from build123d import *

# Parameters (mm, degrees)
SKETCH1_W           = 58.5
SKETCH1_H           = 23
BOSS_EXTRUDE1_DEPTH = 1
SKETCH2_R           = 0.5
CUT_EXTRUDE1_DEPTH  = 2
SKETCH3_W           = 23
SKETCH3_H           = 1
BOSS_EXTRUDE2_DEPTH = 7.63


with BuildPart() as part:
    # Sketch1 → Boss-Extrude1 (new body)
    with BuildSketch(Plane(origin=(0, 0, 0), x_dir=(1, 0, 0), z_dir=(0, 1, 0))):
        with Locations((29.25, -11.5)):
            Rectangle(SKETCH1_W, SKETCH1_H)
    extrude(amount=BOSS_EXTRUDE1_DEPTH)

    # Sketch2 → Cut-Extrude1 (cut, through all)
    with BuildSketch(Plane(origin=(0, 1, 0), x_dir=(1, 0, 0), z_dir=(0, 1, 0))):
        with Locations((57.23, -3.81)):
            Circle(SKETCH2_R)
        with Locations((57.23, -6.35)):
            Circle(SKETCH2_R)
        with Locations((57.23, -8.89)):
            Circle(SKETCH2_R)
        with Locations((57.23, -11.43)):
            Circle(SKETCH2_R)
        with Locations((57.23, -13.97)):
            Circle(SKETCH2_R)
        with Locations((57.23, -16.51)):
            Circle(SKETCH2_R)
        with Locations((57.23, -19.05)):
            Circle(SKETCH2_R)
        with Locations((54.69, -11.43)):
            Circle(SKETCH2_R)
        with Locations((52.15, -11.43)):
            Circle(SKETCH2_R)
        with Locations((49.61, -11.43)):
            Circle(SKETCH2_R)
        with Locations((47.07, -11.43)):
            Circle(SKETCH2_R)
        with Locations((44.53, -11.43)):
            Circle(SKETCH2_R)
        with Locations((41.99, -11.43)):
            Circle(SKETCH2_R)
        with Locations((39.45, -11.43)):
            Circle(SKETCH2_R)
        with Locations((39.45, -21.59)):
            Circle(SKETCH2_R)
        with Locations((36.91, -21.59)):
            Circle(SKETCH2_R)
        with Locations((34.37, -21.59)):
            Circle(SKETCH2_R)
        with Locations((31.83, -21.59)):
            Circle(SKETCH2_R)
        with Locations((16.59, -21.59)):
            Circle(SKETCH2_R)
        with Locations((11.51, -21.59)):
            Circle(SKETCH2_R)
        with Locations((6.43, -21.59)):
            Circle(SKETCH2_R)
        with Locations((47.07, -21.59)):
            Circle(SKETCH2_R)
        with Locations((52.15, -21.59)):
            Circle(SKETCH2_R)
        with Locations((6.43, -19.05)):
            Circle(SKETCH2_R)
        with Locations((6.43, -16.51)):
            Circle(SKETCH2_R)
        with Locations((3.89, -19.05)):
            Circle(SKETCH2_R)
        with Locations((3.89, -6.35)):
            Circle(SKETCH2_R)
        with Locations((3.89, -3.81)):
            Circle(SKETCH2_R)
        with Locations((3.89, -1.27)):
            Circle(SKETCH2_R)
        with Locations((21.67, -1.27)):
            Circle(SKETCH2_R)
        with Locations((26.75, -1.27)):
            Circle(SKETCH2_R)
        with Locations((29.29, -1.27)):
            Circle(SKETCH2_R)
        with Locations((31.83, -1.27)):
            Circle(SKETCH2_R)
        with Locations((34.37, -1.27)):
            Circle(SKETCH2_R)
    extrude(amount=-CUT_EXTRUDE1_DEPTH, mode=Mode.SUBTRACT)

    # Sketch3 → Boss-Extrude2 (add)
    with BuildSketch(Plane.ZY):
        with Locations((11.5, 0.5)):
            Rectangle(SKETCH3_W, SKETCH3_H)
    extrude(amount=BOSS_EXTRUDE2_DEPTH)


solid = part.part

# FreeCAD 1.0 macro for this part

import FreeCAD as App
import Part
import Sketcher

V = App.Vector
Q = App.Units.Quantity


def add_polygon(sketch, points):
    """Adds a closed chain of lines whose ends are joined by coincident constraints."""
    first, n = sketch.GeometryCount, len(points)
    for a, b in zip(points, points[1:] + points[:1]):
        sketch.addGeometry(Part.LineSegment(App.Vector(*a, 0), App.Vector(*b, 0)), False)
    for i in range(n):
        sketch.addConstraint(Sketcher.Constraint("Coincident", first + i, 2, first + (i + 1) % n, 1))

doc = App.newDocument("Part")
params = doc.addObject("Spreadsheet::Sheet", "Params")
for row, (alias, value) in enumerate([
    ("sketch1_height", "23 mm"),
    ("sketch1_width", "58.5 mm"),
    ("pad1_length", "1 mm"),
    ("sketch2_diameter", "1 mm"),
    ("sketch3_width", "1 mm"),
    ("sketch3_height", "23 mm"),
    ("pad2_length", "7.63 mm"),
], start=1):
    params.set(f"A{row}", alias)
    params.set(f"B{row}", "=" + value)
    params.setAlias(f"B{row}", alias)

body = doc.addObject("PartDesign::Body", "Body")

sketch1 = body.newObject("Sketcher::SketchObject", "Sketch")
sketch1.AttachmentSupport = (doc.getObject("XZ_Plane"), [""])
sketch1.MapMode = "FlatFace"
add_polygon(sketch1, [(0, 0), (0, 23), (58.5, 23), (58.5, 0)])
sketch1.addConstraint([
    Sketcher.Constraint("Vertical", 0),
    Sketcher.Constraint("Horizontal", 1),
    Sketcher.Constraint("Vertical", 2),
    Sketcher.Constraint("Horizontal", 3),
    Sketcher.Constraint("Coincident", 3, 2, -1, 1),
    Sketcher.Constraint("DistanceY", 0, 1, 0, 2, Q("23 mm")),
    Sketcher.Constraint("DistanceX", 1, 1, 1, 2, Q("58.5 mm")),
])
sketch1.setExpression("Constraints[9]", "Params.sketch1_height")
sketch1.setExpression("Constraints[10]", "Params.sketch1_width")
pad1 = body.newObject("PartDesign::Pad", "Pad")
pad1.Profile = sketch1
pad1.setExpression("Length", "Params.pad1_length")
pad1.Reversed = True

sketch2 = body.newObject("Sketcher::SketchObject", "Sketch001")
sketch2.AttachmentSupport = (doc.getObject("XZ_Plane"), [""])
sketch2.MapMode = "FlatFace"
sketch2.AttachmentOffset = App.Placement(V(0, 0, -1), App.Rotation())
sketch2.addGeometry([
    Part.Circle(V(57.23, 3.81, 0), V(0, 0, 1), 0.5),
    Part.Circle(V(57.23, 6.35, 0), V(0, 0, 1), 0.5),
    Part.Circle(V(57.23, 8.89, 0), V(0, 0, 1), 0.5),
    Part.Circle(V(57.23, 11.43, 0), V(0, 0, 1), 0.5),
    Part.Circle(V(57.23, 13.97, 0), V(0, 0, 1), 0.5),
    Part.Circle(V(57.23, 16.51, 0), V(0, 0, 1), 0.5),
    Part.Circle(V(57.23, 19.05, 0), V(0, 0, 1), 0.5),
    Part.Circle(V(54.69, 11.43, 0), V(0, 0, 1), 0.5),
    Part.Circle(V(52.15, 11.43, 0), V(0, 0, 1), 0.5),
    Part.Circle(V(49.61, 11.43, 0), V(0, 0, 1), 0.5),
    Part.Circle(V(47.07, 11.43, 0), V(0, 0, 1), 0.5),
    Part.Circle(V(44.53, 11.43, 0), V(0, 0, 1), 0.5),
    Part.Circle(V(41.99, 11.43, 0), V(0, 0, 1), 0.5),
    Part.Circle(V(39.45, 11.43, 0), V(0, 0, 1), 0.5),
    Part.Circle(V(39.45, 21.59, 0), V(0, 0, 1), 0.5),
    Part.Circle(V(36.91, 21.59, 0), V(0, 0, 1), 0.5),
    Part.Circle(V(34.37, 21.59, 0), V(0, 0, 1), 0.5),
    Part.Circle(V(31.83, 21.59, 0), V(0, 0, 1), 0.5),
    Part.Circle(V(16.59, 21.59, 0), V(0, 0, 1), 0.5),
    Part.Circle(V(11.51, 21.59, 0), V(0, 0, 1), 0.5),
    Part.Circle(V(6.43, 21.59, 0), V(0, 0, 1), 0.5),
    Part.Circle(V(47.07, 21.59, 0), V(0, 0, 1), 0.5),
    Part.Circle(V(52.15, 21.59, 0), V(0, 0, 1), 0.5),
    Part.Circle(V(6.43, 19.05, 0), V(0, 0, 1), 0.5),
    Part.Circle(V(6.43, 16.51, 0), V(0, 0, 1), 0.5),
    Part.Circle(V(3.89, 19.05, 0), V(0, 0, 1), 0.5),
    Part.Circle(V(3.89, 6.35, 0), V(0, 0, 1), 0.5),
    Part.Circle(V(3.89, 3.81, 0), V(0, 0, 1), 0.5),
    Part.Circle(V(3.89, 1.27, 0), V(0, 0, 1), 0.5),
    Part.Circle(V(21.67, 1.27, 0), V(0, 0, 1), 0.5),
    Part.Circle(V(26.75, 1.27, 0), V(0, 0, 1), 0.5),
    Part.Circle(V(29.29, 1.27, 0), V(0, 0, 1), 0.5),
    Part.Circle(V(31.83, 1.27, 0), V(0, 0, 1), 0.5),
    Part.Circle(V(34.37, 1.27, 0), V(0, 0, 1), 0.5),
], False)
sketch2.addConstraint([
    Sketcher.Constraint("Equal", 0, 1),
    Sketcher.Constraint("Equal", 1, 2),
    Sketcher.Constraint("Equal", 2, 3),
    Sketcher.Constraint("Equal", 3, 4),
    Sketcher.Constraint("Equal", 4, 5),
    Sketcher.Constraint("Equal", 5, 6),
    Sketcher.Constraint("Equal", 6, 7),
    Sketcher.Constraint("Equal", 7, 8),
    Sketcher.Constraint("Equal", 8, 9),
    Sketcher.Constraint("Equal", 9, 10),
    Sketcher.Constraint("Equal", 10, 11),
    Sketcher.Constraint("Equal", 11, 12),
    Sketcher.Constraint("Equal", 12, 13),
    Sketcher.Constraint("Equal", 13, 14),
    Sketcher.Constraint("Equal", 14, 15),
    Sketcher.Constraint("Equal", 15, 16),
    Sketcher.Constraint("Equal", 16, 17),
    Sketcher.Constraint("Equal", 17, 18),
    Sketcher.Constraint("Equal", 18, 19),
    Sketcher.Constraint("Equal", 19, 20),
    Sketcher.Constraint("Equal", 20, 21),
    Sketcher.Constraint("Equal", 21, 22),
    Sketcher.Constraint("Equal", 22, 23),
    Sketcher.Constraint("Equal", 23, 24),
    Sketcher.Constraint("Equal", 24, 25),
    Sketcher.Constraint("Equal", 25, 26),
    Sketcher.Constraint("Equal", 26, 27),
    Sketcher.Constraint("Equal", 27, 28),
    Sketcher.Constraint("Equal", 28, 29),
    Sketcher.Constraint("Equal", 29, 30),
    Sketcher.Constraint("Equal", 30, 31),
    Sketcher.Constraint("Equal", 31, 32),
    Sketcher.Constraint("Equal", 32, 33),
    Sketcher.Constraint("Horizontal", 3, 3, 7, 3),
    Sketcher.Constraint("Horizontal", 7, 3, 8, 3),
    Sketcher.Constraint("Horizontal", 8, 3, 9, 3),
    Sketcher.Constraint("Horizontal", 9, 3, 10, 3),
    Sketcher.Constraint("Horizontal", 10, 3, 11, 3),
    Sketcher.Constraint("Horizontal", 11, 3, 12, 3),
    Sketcher.Constraint("Horizontal", 12, 3, 13, 3),
    Sketcher.Constraint("Horizontal", 14, 3, 15, 3),
    Sketcher.Constraint("Horizontal", 15, 3, 16, 3),
    Sketcher.Constraint("Horizontal", 16, 3, 17, 3),
    Sketcher.Constraint("Horizontal", 17, 3, 18, 3),
    Sketcher.Constraint("Horizontal", 18, 3, 19, 3),
    Sketcher.Constraint("Horizontal", 19, 3, 20, 3),
    Sketcher.Constraint("Horizontal", 20, 3, 21, 3),
    Sketcher.Constraint("Horizontal", 21, 3, 22, 3),
    Sketcher.Constraint("Horizontal", 6, 3, 23, 3),
    Sketcher.Constraint("Horizontal", 5, 3, 24, 3),
    Sketcher.Constraint("Horizontal", 23, 3, 25, 3),
    Sketcher.Constraint("Horizontal", 1, 3, 26, 3),
    Sketcher.Constraint("Horizontal", 0, 3, 27, 3),
    Sketcher.Constraint("Horizontal", 28, 3, 29, 3),
    Sketcher.Constraint("Horizontal", 29, 3, 30, 3),
    Sketcher.Constraint("Horizontal", 30, 3, 31, 3),
    Sketcher.Constraint("Horizontal", 31, 3, 32, 3),
    Sketcher.Constraint("Horizontal", 32, 3, 33, 3),
    Sketcher.Constraint("Vertical", 0, 3, 1, 3),
    Sketcher.Constraint("Vertical", 1, 3, 2, 3),
    Sketcher.Constraint("Vertical", 2, 3, 3, 3),
    Sketcher.Constraint("Vertical", 3, 3, 4, 3),
    Sketcher.Constraint("Vertical", 4, 3, 5, 3),
    Sketcher.Constraint("Vertical", 5, 3, 6, 3),
    Sketcher.Constraint("Vertical", 13, 3, 14, 3),
    Sketcher.Constraint("Vertical", 10, 3, 21, 3),
    Sketcher.Constraint("Vertical", 8, 3, 22, 3),
    Sketcher.Constraint("Vertical", 20, 3, 23, 3),
    Sketcher.Constraint("Vertical", 23, 3, 24, 3),
    Sketcher.Constraint("Vertical", 25, 3, 26, 3),
    Sketcher.Constraint("Vertical", 26, 3, 27, 3),
    Sketcher.Constraint("Vertical", 27, 3, 28, 3),
    Sketcher.Constraint("Vertical", 17, 3, 32, 3),
    Sketcher.Constraint("Vertical", 16, 3, 33, 3),
    Sketcher.Constraint("Diameter", 0, Q("1 mm")),
    Sketcher.Constraint("DistanceY", 0, 3, 5, 3, Q("12.7 mm")),
    Sketcher.Constraint("DistanceY", 1, 3, 6, 3, Q("12.7 mm")),
    Sketcher.Constraint("DistanceX", 11, 3, 3, 3, Q("12.7 mm")),
    Sketcher.Constraint("DistanceX", 12, 3, 7, 3, Q("12.7 mm")),
    Sketcher.Constraint("DistanceX", 13, 3, 8, 3, Q("12.7 mm")),
    Sketcher.Constraint("DistanceX", 19, 3, 15, 3, Q("25.4 mm")),
    Sketcher.Constraint("DistanceX", 20, 3, 17, 3, Q("25.4 mm")),
    Sketcher.Constraint("DistanceX", 25, 3, 18, 3, Q("12.7 mm")),
    Sketcher.Constraint("DistanceX", 30, 3, 13, 3, Q("12.7 mm")),
    Sketcher.Constraint("DistanceX", 31, 3, 12, 3, Q("12.7 mm")),
    Sketcher.Constraint("DistanceX", 29, 3, 33, 3, Q("12.7 mm")),
    Sketcher.Constraint("DistanceX", -1, 1, 0, 3, Q("57.23 mm")),
    Sketcher.Constraint("DistanceY", -1, 1, 0, 3, Q("3.81 mm")),
    Sketcher.Constraint("DistanceY", -1, 1, 1, 3, Q("6.35 mm")),
    Sketcher.Constraint("DistanceY", -1, 1, 2, 3, Q("8.89 mm")),
    Sketcher.Constraint("DistanceY", -1, 1, 3, 3, Q("11.43 mm")),
    Sketcher.Constraint("DistanceY", -1, 1, 4, 3, Q("13.97 mm")),
    Sketcher.Constraint("DistanceX", -1, 1, 7, 3, Q("54.69 mm")),
    Sketcher.Constraint("DistanceX", -1, 1, 8, 3, Q("52.15 mm")),
    Sketcher.Constraint("DistanceX", -1, 1, 9, 3, Q("49.61 mm")),
    Sketcher.Constraint("DistanceX", -1, 1, 10, 3, Q("47.07 mm")),
    Sketcher.Constraint("DistanceY", -1, 1, 14, 3, Q("21.59 mm")),
    Sketcher.Constraint("DistanceX", -1, 1, 15, 3, Q("36.91 mm")),
    Sketcher.Constraint("DistanceX", -1, 1, 16, 3, Q("34.37 mm")),
    Sketcher.Constraint("DistanceX", -1, 1, 17, 3, Q("31.83 mm")),
    Sketcher.Constraint("DistanceX", -1, 1, 18, 3, Q("16.59 mm")),
    Sketcher.Constraint("DistanceY", -1, 1, 28, 3, Q("1.27 mm")),
])
sketch2.setExpression("Constraints[74]", "Params.sketch2_diameter")
pocket1 = body.newObject("PartDesign::Pocket", "Pocket")
pocket1.Profile = sketch2
pocket1.Type = "ThroughAll"
pocket1.Reversed = True

sketch3 = body.newObject("Sketcher::SketchObject", "Sketch002")
sketch3.AttachmentSupport = (doc.getObject("YZ_Plane"), [""])
sketch3.MapMode = "FlatFace"
add_polygon(sketch3, [(1, 0), (0, 0), (0, 23), (1, 23)])
sketch3.addConstraint([
    Sketcher.Constraint("Horizontal", 0),
    Sketcher.Constraint("Vertical", 1),
    Sketcher.Constraint("Horizontal", 2),
    Sketcher.Constraint("Vertical", 3),
    Sketcher.Constraint("Coincident", 0, 2, -1, 1),
    Sketcher.Constraint("DistanceX", 0, 2, 0, 1, Q("1 mm")),
    Sketcher.Constraint("DistanceY", 1, 1, 1, 2, Q("23 mm")),
])
sketch3.setExpression("Constraints[9]", "Params.sketch3_width")
sketch3.setExpression("Constraints[10]", "Params.sketch3_height")
pad2 = body.newObject("PartDesign::Pad", "Pad001")
pad2.Profile = sketch3
pad2.setExpression("Length", "Params.pad2_length")
pad2.Reversed = True

doc.recompute()
